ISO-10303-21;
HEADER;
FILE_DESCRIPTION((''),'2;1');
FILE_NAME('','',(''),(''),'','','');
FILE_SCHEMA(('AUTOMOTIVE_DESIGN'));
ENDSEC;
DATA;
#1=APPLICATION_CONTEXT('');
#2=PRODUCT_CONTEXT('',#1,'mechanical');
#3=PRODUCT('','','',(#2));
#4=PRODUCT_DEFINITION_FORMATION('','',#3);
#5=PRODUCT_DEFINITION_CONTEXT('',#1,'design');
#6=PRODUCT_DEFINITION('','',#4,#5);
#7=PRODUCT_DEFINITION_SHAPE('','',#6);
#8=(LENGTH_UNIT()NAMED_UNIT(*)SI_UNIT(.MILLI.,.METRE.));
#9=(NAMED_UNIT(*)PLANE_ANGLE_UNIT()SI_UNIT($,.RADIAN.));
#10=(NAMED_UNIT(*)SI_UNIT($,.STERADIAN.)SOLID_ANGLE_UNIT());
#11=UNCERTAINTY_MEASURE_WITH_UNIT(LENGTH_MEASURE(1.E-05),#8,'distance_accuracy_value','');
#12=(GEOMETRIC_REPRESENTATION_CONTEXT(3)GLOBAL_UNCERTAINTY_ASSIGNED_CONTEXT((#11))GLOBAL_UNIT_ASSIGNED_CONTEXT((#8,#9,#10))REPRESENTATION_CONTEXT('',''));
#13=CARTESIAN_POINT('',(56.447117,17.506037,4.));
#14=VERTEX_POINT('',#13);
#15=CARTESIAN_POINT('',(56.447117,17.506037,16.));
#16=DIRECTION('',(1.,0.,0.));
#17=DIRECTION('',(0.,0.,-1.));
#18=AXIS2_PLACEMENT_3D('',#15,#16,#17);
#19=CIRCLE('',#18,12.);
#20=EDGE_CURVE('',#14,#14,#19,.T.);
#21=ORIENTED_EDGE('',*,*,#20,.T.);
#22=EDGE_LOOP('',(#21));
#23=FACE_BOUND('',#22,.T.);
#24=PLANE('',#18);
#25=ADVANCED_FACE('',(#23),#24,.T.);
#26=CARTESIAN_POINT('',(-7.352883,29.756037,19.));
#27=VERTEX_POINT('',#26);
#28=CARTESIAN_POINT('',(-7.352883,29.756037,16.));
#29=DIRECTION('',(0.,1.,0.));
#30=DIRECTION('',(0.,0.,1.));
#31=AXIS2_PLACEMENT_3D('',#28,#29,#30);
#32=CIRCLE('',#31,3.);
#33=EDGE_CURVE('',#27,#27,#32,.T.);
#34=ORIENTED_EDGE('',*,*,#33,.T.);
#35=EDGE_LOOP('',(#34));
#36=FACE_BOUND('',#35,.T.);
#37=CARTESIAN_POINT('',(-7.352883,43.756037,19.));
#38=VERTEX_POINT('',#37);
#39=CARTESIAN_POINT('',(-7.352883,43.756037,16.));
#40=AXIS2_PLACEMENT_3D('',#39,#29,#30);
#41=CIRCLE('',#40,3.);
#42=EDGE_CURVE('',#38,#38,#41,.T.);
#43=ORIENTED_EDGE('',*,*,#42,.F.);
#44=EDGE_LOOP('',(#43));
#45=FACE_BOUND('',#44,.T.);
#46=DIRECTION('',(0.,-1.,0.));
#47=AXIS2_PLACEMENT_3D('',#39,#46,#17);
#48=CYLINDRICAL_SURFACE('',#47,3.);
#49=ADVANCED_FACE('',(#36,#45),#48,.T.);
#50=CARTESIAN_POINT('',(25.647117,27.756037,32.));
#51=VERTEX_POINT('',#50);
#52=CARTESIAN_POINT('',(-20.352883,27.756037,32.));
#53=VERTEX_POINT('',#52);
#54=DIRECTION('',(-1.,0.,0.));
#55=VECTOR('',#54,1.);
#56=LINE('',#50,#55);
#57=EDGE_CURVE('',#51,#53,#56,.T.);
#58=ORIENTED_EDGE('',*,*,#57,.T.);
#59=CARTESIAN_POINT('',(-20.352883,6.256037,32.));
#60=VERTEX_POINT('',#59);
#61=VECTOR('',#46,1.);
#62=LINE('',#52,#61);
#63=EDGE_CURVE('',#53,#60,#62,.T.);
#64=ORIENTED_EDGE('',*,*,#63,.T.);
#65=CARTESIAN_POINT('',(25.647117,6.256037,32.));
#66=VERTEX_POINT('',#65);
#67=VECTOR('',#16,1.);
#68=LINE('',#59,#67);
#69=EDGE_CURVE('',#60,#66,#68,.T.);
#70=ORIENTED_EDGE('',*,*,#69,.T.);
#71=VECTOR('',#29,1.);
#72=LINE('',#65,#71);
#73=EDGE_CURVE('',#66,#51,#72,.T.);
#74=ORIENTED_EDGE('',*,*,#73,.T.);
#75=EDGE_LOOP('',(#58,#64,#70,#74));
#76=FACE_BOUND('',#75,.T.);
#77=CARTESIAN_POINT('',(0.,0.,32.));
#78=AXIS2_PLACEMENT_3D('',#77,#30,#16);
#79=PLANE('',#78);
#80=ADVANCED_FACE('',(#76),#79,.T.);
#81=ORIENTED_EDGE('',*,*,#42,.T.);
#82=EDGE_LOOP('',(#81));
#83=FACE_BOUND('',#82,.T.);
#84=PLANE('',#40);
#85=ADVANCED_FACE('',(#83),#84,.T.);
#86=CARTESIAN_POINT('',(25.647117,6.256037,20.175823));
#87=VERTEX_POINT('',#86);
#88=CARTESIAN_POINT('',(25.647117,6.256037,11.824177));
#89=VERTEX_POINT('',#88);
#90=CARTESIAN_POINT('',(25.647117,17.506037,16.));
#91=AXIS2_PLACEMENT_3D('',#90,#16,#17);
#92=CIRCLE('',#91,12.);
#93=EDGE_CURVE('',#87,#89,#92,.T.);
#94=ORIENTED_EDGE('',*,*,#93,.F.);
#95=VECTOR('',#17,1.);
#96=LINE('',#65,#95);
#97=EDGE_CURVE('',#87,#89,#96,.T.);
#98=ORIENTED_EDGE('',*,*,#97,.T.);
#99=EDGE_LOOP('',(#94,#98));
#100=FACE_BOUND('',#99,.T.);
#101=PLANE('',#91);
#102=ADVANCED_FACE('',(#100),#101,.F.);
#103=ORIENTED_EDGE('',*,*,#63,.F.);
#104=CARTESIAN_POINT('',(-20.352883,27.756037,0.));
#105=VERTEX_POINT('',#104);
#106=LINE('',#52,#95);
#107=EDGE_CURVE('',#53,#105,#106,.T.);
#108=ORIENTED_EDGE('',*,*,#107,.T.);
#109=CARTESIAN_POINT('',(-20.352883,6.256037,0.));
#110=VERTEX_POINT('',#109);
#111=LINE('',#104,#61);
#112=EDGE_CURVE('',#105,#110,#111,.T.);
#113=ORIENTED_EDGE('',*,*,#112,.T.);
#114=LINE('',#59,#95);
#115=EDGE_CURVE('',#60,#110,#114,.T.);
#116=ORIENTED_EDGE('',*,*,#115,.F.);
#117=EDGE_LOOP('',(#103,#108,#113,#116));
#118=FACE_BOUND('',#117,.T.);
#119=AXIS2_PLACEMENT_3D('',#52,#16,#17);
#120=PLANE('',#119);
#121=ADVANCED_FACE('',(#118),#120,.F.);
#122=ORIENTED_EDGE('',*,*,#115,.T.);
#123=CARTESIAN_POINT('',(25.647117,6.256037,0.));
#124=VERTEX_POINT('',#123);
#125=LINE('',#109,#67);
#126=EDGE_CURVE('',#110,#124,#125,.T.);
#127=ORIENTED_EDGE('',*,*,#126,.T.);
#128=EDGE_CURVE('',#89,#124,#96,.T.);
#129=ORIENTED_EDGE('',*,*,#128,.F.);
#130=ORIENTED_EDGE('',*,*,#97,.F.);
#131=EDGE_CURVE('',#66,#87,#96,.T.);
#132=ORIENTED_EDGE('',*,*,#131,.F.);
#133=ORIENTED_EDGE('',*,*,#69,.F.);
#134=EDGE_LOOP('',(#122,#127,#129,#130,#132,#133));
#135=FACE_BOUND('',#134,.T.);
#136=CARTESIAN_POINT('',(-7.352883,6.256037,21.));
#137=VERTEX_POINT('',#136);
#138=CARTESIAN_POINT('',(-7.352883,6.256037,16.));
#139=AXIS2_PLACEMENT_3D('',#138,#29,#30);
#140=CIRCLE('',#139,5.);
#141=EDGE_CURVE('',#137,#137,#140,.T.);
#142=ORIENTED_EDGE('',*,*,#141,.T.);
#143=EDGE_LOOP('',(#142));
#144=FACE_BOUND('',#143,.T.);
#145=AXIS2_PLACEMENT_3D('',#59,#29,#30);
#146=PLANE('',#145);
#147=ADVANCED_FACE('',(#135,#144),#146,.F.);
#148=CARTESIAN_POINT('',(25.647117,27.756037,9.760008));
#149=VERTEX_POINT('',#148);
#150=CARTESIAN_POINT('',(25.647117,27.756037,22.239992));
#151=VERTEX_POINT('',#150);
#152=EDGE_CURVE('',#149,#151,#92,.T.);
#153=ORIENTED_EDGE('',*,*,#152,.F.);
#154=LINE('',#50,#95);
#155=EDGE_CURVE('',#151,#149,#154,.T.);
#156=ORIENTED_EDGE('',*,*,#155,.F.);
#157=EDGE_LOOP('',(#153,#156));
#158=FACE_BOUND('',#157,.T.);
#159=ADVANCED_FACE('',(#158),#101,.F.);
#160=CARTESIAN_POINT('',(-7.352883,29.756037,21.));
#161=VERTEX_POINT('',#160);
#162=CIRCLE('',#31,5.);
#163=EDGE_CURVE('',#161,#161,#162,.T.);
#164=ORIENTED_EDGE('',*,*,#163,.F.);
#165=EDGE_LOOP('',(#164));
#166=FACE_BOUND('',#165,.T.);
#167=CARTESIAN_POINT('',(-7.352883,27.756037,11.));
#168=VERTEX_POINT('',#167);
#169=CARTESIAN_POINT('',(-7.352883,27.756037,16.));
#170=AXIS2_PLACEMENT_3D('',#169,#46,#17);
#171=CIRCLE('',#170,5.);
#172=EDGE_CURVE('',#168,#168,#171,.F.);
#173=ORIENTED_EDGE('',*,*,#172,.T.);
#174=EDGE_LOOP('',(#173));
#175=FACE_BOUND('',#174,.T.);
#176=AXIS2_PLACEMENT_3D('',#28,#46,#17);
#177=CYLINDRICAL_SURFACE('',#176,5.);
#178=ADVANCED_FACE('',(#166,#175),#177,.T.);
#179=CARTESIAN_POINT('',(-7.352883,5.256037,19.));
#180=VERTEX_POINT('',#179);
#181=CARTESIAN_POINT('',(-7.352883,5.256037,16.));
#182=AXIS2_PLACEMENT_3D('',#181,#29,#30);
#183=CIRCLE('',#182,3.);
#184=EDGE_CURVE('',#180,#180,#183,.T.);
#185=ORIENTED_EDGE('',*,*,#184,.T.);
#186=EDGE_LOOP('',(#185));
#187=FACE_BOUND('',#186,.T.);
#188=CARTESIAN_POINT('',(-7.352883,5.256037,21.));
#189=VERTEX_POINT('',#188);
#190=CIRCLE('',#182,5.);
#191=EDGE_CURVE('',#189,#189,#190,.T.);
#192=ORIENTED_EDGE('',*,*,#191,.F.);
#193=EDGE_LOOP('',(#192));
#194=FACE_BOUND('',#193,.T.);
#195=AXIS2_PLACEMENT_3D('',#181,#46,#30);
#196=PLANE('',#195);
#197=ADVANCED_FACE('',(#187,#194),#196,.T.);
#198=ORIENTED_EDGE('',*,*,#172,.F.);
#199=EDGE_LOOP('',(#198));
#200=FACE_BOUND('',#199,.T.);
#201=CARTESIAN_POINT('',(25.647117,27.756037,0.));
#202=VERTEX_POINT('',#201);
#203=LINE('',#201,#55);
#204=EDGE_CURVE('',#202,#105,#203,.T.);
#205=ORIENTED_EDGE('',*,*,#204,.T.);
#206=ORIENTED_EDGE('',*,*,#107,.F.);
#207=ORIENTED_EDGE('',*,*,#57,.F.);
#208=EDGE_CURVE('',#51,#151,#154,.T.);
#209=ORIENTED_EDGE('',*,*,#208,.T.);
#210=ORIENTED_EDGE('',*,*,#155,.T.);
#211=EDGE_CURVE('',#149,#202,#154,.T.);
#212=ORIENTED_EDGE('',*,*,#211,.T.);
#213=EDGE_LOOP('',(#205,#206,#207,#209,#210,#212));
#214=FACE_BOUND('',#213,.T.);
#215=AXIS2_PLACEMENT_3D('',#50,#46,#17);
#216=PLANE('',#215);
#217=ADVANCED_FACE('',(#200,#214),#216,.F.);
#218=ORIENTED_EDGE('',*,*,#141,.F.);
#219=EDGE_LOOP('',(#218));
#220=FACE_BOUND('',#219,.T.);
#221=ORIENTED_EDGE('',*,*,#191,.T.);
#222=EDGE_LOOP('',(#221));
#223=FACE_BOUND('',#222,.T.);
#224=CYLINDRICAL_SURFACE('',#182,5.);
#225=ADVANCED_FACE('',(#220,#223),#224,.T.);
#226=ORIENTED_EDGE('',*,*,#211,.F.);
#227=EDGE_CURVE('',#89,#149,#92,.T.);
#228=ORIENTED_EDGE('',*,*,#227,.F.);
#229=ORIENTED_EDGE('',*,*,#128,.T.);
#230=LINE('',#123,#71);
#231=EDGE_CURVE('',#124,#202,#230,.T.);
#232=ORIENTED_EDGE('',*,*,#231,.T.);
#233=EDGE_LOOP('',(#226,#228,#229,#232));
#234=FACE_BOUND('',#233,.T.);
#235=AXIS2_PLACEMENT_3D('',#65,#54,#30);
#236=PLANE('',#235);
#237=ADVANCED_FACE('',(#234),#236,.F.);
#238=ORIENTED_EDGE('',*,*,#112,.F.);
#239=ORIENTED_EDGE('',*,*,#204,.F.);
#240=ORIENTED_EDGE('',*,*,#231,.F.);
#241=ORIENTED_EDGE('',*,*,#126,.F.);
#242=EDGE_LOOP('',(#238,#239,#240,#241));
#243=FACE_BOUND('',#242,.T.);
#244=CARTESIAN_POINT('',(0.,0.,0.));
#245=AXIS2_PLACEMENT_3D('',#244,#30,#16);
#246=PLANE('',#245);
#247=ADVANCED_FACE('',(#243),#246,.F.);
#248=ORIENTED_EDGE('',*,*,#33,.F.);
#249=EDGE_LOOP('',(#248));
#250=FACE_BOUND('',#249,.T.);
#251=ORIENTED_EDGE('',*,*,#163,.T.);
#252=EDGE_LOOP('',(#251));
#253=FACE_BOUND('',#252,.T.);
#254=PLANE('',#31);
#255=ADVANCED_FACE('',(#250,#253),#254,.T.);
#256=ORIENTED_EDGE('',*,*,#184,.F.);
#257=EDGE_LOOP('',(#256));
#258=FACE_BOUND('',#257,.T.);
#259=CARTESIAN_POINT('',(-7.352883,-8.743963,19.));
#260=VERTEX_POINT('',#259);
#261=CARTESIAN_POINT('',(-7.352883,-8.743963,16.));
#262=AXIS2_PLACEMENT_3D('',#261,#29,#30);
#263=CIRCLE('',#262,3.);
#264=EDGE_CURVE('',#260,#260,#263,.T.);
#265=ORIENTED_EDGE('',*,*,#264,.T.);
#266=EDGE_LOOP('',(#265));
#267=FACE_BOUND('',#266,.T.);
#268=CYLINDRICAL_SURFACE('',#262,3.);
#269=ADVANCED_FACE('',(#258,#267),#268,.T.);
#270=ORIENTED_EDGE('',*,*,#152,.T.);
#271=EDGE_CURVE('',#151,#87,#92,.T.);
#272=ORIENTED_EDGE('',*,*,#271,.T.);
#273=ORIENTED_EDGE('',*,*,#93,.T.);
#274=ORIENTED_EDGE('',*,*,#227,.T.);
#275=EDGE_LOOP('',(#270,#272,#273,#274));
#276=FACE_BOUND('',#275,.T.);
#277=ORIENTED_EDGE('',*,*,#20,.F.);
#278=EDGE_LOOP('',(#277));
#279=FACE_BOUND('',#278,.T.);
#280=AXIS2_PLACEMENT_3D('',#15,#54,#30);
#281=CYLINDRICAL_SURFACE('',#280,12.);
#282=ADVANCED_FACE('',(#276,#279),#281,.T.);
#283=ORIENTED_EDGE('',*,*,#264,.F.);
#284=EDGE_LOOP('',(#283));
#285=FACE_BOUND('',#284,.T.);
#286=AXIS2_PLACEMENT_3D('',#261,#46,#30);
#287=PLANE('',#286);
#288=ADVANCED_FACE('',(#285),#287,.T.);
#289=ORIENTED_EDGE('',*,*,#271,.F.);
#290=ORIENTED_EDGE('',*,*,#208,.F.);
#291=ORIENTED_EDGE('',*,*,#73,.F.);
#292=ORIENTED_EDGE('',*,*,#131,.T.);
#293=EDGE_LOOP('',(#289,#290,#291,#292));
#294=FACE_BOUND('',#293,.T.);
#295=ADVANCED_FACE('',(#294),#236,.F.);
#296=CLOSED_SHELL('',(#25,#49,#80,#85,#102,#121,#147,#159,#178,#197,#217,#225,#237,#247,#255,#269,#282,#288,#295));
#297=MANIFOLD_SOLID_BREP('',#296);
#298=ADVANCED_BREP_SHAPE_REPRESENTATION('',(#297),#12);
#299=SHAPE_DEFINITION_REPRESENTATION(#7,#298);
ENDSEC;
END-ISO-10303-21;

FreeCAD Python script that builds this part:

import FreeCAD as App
import Part
import Sketcher
Q = App.Units.Quantity


def add_polygon(sketch, points):
    """Adds a closed chain of lines whose ends are joined by coincident constraints."""
    first, n = sketch.GeometryCount, len(points)
    for a, b in zip(points, points[1:] + points[:1]):
        sketch.addGeometry(Part.LineSegment(App.Vector(*a, 0), App.Vector(*b, 0)), False)
    for i in range(n):
        sketch.addConstraint(Sketcher.Constraint("Coincident", first + i, 2, first + (i + 1) % n, 1))

doc = App.newDocument("Part")
body = doc.addObject("PartDesign::Body", "Body")

# Sketch on XY plane
sketch1 = body.newObject("Sketcher::SketchObject", "Sketch")
sketch1.AttachmentSupport = (doc.getObject("XY_Plane"), [""])
sketch1.MapMode = "FlatFace"
add_polygon(sketch1, [(-20, 28), (-20, 6), (26, 6), (26, 28)])  # lines 0-3
sketch1.addConstraint([
    Sketcher.Constraint("Vertical", 0),
    Sketcher.Constraint("Horizontal", 1),
    Sketcher.Constraint("Vertical", 2),
    Sketcher.Constraint("Horizontal", 3),
    Sketcher.Constraint("DistanceX", 1, 1, 1, 2, Q("46 mm")),
    Sketcher.Constraint("DistanceY", 0, 2, 0, 1, Q("21.5 mm")),
    Sketcher.Constraint("DistanceX", 0, 2, -1, 1, Q("20.352883 mm")),
    Sketcher.Constraint("DistanceY", -1, 1, 0, 2, Q("6.256037 mm")),
])
pad1 = body.newObject("PartDesign::Pad", "Pad")
pad1.Profile = sketch1
pad1.Length = 32

# Sketch on XZ plane
sketch2 = body.newObject("Sketcher::SketchObject", "Sketch001")
sketch2.AttachmentSupport = (doc.getObject("XZ_Plane"), [""])
sketch2.MapMode = "FlatFace"
sketch2.AttachmentOffset = App.Placement(App.Vector(0, 0, -27.756037), App.Rotation())
sketch2.addGeometry(Part.Circle(App.Vector(-7, 16, 0), App.Vector(0, 0, 1), 5), False)
sketch2.addConstraint([
    Sketcher.Constraint("Diameter", 0, Q("10 mm")),
    Sketcher.Constraint("DistanceY", -1, 1, 0, 3, Q("16 mm")),
    Sketcher.Constraint("DistanceX", 0, 3, -1, 1, Q("7.352883 mm")),
])
pad2 = body.newObject("PartDesign::Pad", "Pad001")
pad2.Profile = sketch2
pad2.Length = 2
pad2.Reversed = True

# Sketch on XZ plane
sketch3 = body.newObject("Sketcher::SketchObject", "Sketch002")
sketch3.AttachmentSupport = (doc.getObject("XZ_Plane"), [""])
sketch3.MapMode = "FlatFace"
sketch3.AttachmentOffset = App.Placement(App.Vector(0, 0, -29.756037), App.Rotation())
sketch3.addGeometry(Part.Circle(App.Vector(-7.4, 16, 0), App.Vector(0, 0, 1), 3), False)
sketch3.addConstraint([
    Sketcher.Constraint("Diameter", 0, Q("6 mm")),
    Sketcher.Constraint("DistanceY", -1, 1, 0, 3, Q("16 mm")),
    Sketcher.Constraint("DistanceX", 0, 3, -1, 1, Q("7.352883 mm")),
])
pad3 = body.newObject("PartDesign::Pad", "Pad002")
pad3.Profile = sketch3
pad3.Length = 14
pad3.Reversed = True
doc.recompute()

datumplane = body.newObject("PartDesign::Plane", "DatumPlane")
datumplane.AttachmentSupport = (doc.getObject("XZ_Plane"), [""])
datumplane.MapMode = "FlatFace"
datumplane.AttachmentOffset = App.Placement(App.Vector(0, 0, -17.506037), App.Rotation())
mirrored = body.newObject("PartDesign::Mirrored", "Mirrored")
mirrored.Originals = [pad2, pad3]
mirrored.MirrorPlane = (datumplane, [""])
body.Tip = mirrored

# Sketch on YZ plane
sketch4 = body.newObject("Sketcher::SketchObject", "Sketch003")
sketch4.AttachmentSupport = (doc.getObject("YZ_Plane"), [""])
sketch4.MapMode = "FlatFace"
sketch4.AttachmentOffset = App.Placement(App.Vector(0, 0, 25.647117), App.Rotation())
sketch4.addGeometry(Part.Circle(App.Vector(18, 16, 0), App.Vector(0, 0, 1), 12), False)
sketch4.addConstraint([
    Sketcher.Constraint("Diameter", 0, Q("24 mm")),
    Sketcher.Constraint("DistanceY", -1, 1, 0, 3, Q("16 mm")),
    Sketcher.Constraint("DistanceX", -1, 1, 0, 3, Q("17.506037 mm")),
])
pad4 = body.newObject("PartDesign::Pad", "Pad003")
pad4.Profile = sketch4
pad4.Length = 30.8

doc.recompute()
